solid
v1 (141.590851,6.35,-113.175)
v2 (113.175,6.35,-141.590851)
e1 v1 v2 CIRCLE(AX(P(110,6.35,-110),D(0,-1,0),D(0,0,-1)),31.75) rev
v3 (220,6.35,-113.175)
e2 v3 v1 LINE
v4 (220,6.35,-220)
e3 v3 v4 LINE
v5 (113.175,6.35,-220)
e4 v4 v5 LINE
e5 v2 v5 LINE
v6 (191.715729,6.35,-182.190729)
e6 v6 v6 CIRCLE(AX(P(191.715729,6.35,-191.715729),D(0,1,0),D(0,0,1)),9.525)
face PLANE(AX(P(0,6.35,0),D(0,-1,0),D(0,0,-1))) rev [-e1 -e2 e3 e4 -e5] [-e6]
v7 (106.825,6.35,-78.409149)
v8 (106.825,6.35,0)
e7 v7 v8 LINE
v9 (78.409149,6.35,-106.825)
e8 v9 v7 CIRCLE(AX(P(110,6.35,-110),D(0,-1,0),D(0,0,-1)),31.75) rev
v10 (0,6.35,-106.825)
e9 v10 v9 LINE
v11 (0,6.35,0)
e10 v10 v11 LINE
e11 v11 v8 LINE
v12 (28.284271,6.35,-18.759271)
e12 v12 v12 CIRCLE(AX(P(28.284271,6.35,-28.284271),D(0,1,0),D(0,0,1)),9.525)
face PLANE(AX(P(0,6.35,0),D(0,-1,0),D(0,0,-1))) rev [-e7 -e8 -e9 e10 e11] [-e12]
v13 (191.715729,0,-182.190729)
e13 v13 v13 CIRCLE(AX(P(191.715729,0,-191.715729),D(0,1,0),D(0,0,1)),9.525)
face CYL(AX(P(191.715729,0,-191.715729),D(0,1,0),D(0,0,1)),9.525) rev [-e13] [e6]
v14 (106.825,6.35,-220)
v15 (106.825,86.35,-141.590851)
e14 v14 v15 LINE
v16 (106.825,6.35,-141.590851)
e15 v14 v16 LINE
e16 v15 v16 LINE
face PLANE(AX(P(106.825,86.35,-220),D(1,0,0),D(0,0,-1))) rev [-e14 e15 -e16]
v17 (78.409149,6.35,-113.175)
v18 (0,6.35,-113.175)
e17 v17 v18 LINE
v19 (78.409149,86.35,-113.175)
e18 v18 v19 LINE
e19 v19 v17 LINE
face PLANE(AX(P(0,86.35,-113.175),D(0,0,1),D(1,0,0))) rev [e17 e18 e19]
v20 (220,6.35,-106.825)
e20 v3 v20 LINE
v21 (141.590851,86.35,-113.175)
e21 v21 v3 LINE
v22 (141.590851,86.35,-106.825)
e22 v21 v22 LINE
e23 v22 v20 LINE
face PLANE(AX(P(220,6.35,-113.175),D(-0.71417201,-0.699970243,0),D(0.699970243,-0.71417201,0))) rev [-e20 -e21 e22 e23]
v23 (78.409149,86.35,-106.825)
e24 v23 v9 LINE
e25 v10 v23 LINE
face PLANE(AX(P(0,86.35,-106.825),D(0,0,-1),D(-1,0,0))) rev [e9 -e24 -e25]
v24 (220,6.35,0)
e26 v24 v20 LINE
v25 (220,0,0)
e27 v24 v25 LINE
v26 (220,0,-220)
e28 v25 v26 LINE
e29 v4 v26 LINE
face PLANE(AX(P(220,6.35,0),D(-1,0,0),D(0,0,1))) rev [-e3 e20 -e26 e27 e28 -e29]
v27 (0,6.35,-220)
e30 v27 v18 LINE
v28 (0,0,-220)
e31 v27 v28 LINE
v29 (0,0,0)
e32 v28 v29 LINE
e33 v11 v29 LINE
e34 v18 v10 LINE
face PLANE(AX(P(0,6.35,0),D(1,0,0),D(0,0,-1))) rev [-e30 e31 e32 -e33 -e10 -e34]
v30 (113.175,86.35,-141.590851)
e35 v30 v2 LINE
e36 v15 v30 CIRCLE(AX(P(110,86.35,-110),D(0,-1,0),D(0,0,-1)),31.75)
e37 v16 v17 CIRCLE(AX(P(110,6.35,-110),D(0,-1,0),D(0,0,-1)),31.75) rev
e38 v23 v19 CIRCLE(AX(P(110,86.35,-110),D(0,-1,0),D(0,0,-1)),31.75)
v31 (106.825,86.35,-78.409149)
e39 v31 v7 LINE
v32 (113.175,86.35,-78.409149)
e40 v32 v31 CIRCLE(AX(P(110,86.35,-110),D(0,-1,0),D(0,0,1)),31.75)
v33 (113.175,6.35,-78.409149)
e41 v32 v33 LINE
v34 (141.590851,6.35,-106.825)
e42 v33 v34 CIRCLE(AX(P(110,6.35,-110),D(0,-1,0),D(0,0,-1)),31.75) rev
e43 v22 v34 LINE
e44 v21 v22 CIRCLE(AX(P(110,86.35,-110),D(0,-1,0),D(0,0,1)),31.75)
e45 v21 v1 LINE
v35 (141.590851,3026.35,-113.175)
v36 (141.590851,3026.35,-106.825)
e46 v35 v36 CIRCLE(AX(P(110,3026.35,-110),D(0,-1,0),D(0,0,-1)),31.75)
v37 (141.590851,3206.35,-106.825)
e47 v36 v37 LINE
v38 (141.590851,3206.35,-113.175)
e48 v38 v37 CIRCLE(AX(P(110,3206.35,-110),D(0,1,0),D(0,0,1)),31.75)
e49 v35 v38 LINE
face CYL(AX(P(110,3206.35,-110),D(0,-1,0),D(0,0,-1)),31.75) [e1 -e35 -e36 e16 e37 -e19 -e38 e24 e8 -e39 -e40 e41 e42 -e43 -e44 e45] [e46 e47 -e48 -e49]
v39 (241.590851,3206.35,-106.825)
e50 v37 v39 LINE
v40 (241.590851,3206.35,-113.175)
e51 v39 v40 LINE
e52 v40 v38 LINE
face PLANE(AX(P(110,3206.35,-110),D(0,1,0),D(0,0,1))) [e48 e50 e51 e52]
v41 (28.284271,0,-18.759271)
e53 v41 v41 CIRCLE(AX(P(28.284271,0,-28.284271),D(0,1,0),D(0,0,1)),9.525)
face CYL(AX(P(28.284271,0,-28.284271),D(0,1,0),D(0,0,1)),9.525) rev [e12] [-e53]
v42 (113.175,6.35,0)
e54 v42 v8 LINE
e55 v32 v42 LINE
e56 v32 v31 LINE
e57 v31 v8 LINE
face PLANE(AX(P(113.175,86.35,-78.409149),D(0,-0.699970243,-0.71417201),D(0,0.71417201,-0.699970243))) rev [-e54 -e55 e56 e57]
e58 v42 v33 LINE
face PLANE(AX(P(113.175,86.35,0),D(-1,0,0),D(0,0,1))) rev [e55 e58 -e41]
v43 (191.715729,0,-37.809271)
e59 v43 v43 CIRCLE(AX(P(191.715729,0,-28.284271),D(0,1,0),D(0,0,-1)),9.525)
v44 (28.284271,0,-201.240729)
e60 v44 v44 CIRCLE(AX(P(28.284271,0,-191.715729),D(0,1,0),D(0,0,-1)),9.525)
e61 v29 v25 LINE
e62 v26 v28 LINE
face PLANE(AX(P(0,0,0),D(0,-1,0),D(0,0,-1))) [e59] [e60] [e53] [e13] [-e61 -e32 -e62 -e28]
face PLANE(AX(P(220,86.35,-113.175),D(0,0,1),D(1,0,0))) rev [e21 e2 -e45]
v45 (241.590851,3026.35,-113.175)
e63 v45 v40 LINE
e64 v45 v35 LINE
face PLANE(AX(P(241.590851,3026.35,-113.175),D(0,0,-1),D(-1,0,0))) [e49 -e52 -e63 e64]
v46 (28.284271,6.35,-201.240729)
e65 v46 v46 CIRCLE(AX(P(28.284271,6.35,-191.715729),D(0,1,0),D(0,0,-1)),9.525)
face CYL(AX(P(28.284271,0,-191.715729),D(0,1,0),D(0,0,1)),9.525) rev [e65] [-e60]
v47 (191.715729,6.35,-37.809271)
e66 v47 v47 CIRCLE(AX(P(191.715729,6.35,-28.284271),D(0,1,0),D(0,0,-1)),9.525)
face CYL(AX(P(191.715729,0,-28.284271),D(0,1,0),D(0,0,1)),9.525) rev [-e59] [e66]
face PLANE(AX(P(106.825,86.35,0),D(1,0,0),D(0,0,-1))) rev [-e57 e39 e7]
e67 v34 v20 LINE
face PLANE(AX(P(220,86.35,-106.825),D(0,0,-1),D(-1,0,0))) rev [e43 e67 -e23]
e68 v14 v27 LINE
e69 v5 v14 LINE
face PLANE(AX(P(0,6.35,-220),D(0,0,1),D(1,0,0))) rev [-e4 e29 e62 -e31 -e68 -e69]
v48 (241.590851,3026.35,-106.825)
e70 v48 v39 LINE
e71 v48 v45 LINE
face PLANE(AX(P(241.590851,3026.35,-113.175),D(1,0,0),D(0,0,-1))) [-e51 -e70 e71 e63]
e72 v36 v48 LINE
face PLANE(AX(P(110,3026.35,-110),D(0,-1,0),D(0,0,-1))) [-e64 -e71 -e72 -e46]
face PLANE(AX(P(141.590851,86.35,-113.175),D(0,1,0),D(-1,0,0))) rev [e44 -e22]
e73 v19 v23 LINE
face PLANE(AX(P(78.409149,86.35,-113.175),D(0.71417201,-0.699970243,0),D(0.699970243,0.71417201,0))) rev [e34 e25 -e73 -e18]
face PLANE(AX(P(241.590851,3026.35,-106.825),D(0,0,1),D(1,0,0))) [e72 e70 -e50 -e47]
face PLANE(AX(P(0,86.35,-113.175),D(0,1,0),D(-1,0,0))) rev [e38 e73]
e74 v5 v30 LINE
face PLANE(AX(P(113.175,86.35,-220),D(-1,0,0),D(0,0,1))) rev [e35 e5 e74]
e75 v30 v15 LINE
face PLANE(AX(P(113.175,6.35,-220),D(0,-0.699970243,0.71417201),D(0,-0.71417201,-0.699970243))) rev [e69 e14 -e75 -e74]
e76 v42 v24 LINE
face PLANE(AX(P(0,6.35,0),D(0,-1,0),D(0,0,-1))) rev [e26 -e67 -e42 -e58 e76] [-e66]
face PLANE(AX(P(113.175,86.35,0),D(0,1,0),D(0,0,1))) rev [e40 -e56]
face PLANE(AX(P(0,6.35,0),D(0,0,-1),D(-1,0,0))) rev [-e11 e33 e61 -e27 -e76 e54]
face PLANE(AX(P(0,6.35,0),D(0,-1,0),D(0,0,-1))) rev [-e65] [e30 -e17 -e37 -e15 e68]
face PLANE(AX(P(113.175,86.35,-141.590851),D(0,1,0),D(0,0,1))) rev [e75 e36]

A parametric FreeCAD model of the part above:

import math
import FreeCAD as App
import Part
import Sketcher

V = App.Vector

doc = App.newDocument("Part")
body = doc.addObject("PartDesign::Body", "Body")

# Sketch on XZ plane
sketch1 = body.newObject("Sketcher::SketchObject", "Sketch")
sketch1.AttachmentSupport = (doc.getObject("XZ_Plane"), [""])
sketch1.MapMode = "FlatFace"
sketch1.addGeometry(Part.LineSegment(V(0, -220, 0), V(0, 0, 0)), False)
sketch1.addGeometry(Part.LineSegment(V(0, 0, 0), V(220, 0, 0)), False)
sketch1.addGeometry(Part.LineSegment(V(220, 0, 0), V(220, -220, 0)), False)
sketch1.addGeometry(Part.LineSegment(V(220, -220, 0), V(0, -220, 0)), False)
sketch1.addConstraint(Sketcher.Constraint("Coincident", 0, 2, 1, 1))
sketch1.addConstraint(Sketcher.Constraint("Coincident", 1, 2, 2, 1))
sketch1.addConstraint(Sketcher.Constraint("Coincident", 2, 2, 3, 1))
sketch1.addConstraint(Sketcher.Constraint("Coincident", 3, 2, 0, 1))
sketch1.addConstraint(Sketcher.Constraint("Vertical", 0))
sketch1.addConstraint(Sketcher.Constraint("Horizontal", 1))
sketch1.addConstraint(Sketcher.Constraint("Vertical", 2))
sketch1.addConstraint(Sketcher.Constraint("Horizontal", 3))
sketch1.addConstraint(Sketcher.Constraint("Coincident", 0, 2, -1, 1))
sketch1.addConstraint(Sketcher.Constraint("Equal", 3, 0))
sketch1.addConstraint(Sketcher.Constraint("DistanceX", 1, 1, 1, 2, 220.0))
pad1 = body.newObject("PartDesign::Pad", "Pad")
pad1.Profile = sketch1
pad1.Length = 6.35
pad1.Reversed = True

# Sketch on XZ plane
sketch2 = body.newObject("Sketcher::SketchObject", "Sketch001")
sketch2.AttachmentSupport = (doc.getObject("XZ_Plane"), [""])
sketch2.MapMode = "FlatFace"
sketch2.AttachmentOffset = App.Placement(V(0, 0, -6.35), App.Rotation())
sketch2.addGeometry(Part.Circle(V(110, -110, 0), V(0, 0, 1), 31.75), False)
sketch2.addConstraint(Sketcher.Constraint("Diameter", 0, 63.5))
sketch2.addConstraint(Sketcher.Constraint("DistanceX", -1, 1, 0, 3, 110.0))
sketch2.addConstraint(Sketcher.Constraint("DistanceY", 0, 3, -1, 1, 110.0))
pad2 = body.newObject("PartDesign::Pad", "Pad001")
pad2.Profile = sketch2
pad2.Length = 3200
pad2.Reversed = True

# Sketch on XZ plane
sketch3 = body.newObject("Sketcher::SketchObject", "Sketch002")
sketch3.AttachmentSupport = (doc.getObject("XZ_Plane"), [""])
sketch3.MapMode = "FlatFace"
sketch3.AttachmentOffset = App.Placement(V(0, 0, -6.35), App.Rotation())
sketch3.addGeometry(Part.LineSegment(V(78.409149, -113.175, 0), V(0, -113.175, 0)), False)
sketch3.addGeometry(Part.LineSegment(V(0, -113.175, 0), V(0, -106.825, 0)), False)
sketch3.addGeometry(Part.LineSegment(V(0, -106.825, 0), V(78.409149, -106.825, 0)), False)
sketch3.addGeometry(Part.ArcOfCircle(Part.Circle(V(110, -110, 0), V(0, 0, 1), 31.75), math.radians(174.26083), math.radians(185.73917)), False)
sketch3.addGeometry(Part.LineSegment(V(106.825, -220, 0), V(106.825, -141.590851, 0)), False)
sketch3.addGeometry(Part.ArcOfCircle(Part.Circle(V(110, -110, 0), V(0, 0, 1), 31.75), math.radians(-95.73917), math.radians(-84.26083)), False)
sketch3.addGeometry(Part.LineSegment(V(113.175, -141.590851, 0), V(113.175, -220, 0)), False)
sketch3.addGeometry(Part.LineSegment(V(113.175, -220, 0), V(106.825, -220, 0)), False)
sketch3.addGeometry(Part.LineSegment(V(106.825, 0, 0), V(113.175, 0, 0)), False)
sketch3.addGeometry(Part.LineSegment(V(113.175, 0, 0), V(113.175, -78.409149, 0)), False)
sketch3.addGeometry(Part.ArcOfCircle(Part.Circle(V(110, -110, 0), V(0, 0, 1), 31.75), math.radians(84.26083), math.radians(95.73917)), False)
sketch3.addGeometry(Part.LineSegment(V(106.825, -78.409149, 0), V(106.825, 0, 0)), False)
sketch3.addGeometry(Part.LineSegment(V(220, -106.825, 0), V(220, -113.175, 0)), False)
sketch3.addGeometry(Part.LineSegment(V(220, -113.175, 0), V(141.590851, -113.175, 0)), False)
sketch3.addGeometry(Part.ArcOfCircle(Part.Circle(V(110, -110, 0), V(0, 0, 1), 31.75), math.radians(-5.73917), math.radians(5.73917)), False)
sketch3.addGeometry(Part.LineSegment(V(141.590851, -106.825, 0), V(220, -106.825, 0)), False)
sketch3.addConstraint(Sketcher.Constraint("Coincident", 0, 2, 1, 1))
sketch3.addConstraint(Sketcher.Constraint("Coincident", 1, 2, 2, 1))
sketch3.addConstraint(Sketcher.Constraint("Coincident", 2, 2, 3, 1))
sketch3.addConstraint(Sketcher.Constraint("Coincident", 3, 2, 0, 1))
sketch3.addConstraint(Sketcher.Constraint("Coincident", 4, 2, 5, 1))
sketch3.addConstraint(Sketcher.Constraint("Coincident", 5, 2, 6, 1))
sketch3.addConstraint(Sketcher.Constraint("Coincident", 6, 2, 7, 1))
sketch3.addConstraint(Sketcher.Constraint("Coincident", 7, 2, 4, 1))
sketch3.addConstraint(Sketcher.Constraint("Coincident", 8, 2, 9, 1))
sketch3.addConstraint(Sketcher.Constraint("Coincident", 9, 2, 10, 1))
sketch3.addConstraint(Sketcher.Constraint("Coincident", 10, 2, 11, 1))
sketch3.addConstraint(Sketcher.Constraint("Coincident", 11, 2, 8, 1))
sketch3.addConstraint(Sketcher.Constraint("Coincident", 12, 2, 13, 1))
sketch3.addConstraint(Sketcher.Constraint("Coincident", 13, 2, 14, 1))
sketch3.addConstraint(Sketcher.Constraint("Coincident", 14, 2, 15, 1))
sketch3.addConstraint(Sketcher.Constraint("Coincident", 15, 2, 12, 1))
sketch3.addConstraint(Sketcher.Constraint("Horizontal", 0))
sketch3.addConstraint(Sketcher.Constraint("Vertical", 1))
sketch3.addConstraint(Sketcher.Constraint("Horizontal", 2))
sketch3.addConstraint(Sketcher.Constraint("Vertical", 4))
sketch3.addConstraint(Sketcher.Constraint("Vertical", 6))
sketch3.addConstraint(Sketcher.Constraint("Horizontal", 7))
sketch3.addConstraint(Sketcher.Constraint("Horizontal", 8))
sketch3.addConstraint(Sketcher.Constraint("Vertical", 9))
sketch3.addConstraint(Sketcher.Constraint("Vertical", 11))
sketch3.addConstraint(Sketcher.Constraint("Vertical", 12))
sketch3.addConstraint(Sketcher.Constraint("Horizontal", 13))
sketch3.addConstraint(Sketcher.Constraint("Horizontal", 15))
sketch3.addConstraint(Sketcher.Constraint("Coincident", 5, 3, 3, 3))
sketch3.addConstraint(Sketcher.Constraint("Coincident", 10, 3, 3, 3))
sketch3.addConstraint(Sketcher.Constraint("Coincident", 14, 3, 3, 3))
sketch3.addConstraint(Sketcher.Constraint("Equal", 3, 5))
sketch3.addConstraint(Sketcher.Constraint("Equal", 5, 10))
sketch3.addConstraint(Sketcher.Constraint("Equal", 10, 14))
sketch3.addConstraint(Sketcher.Constraint("PointOnObject", 0, 2, -2))
sketch3.addConstraint(Sketcher.Constraint("PointOnObject", 8, 2, -1))
sketch3.addConstraint(Sketcher.Constraint("Horizontal", 4, 2, 5, 2))
sketch3.addConstraint(Sketcher.Constraint("Horizontal", 9, 2, 10, 2))
sketch3.addConstraint(Sketcher.Constraint("Horizontal", 3, 2, 12, 2))
sketch3.addConstraint(Sketcher.Constraint("Horizontal", 2, 2, 14, 2))
sketch3.addConstraint(Sketcher.Constraint("Vertical", 2, 2, 3, 2))
sketch3.addConstraint(Sketcher.Constraint("Vertical", 6, 2, 8, 2))
sketch3.addConstraint(Sketcher.Constraint("Equal", 2, 13))
sketch3.addConstraint(Sketcher.Constraint("Equal", 8, 1))
sketch3.addConstraint(Sketcher.Constraint("Equal", 15, 4))
sketch3.addConstraint(Sketcher.Constraint("Equal", 6, 9))
sketch3.addConstraint(Sketcher.Constraint("Radius", 3, 31.75))
sketch3.addConstraint(Sketcher.Constraint("DistanceX", -1, 1, 3, 3, 110.0))
sketch3.addConstraint(Sketcher.Constraint("DistanceX", 7, 2, 7, 1, 6.35))
pad3 = body.newObject("PartDesign::Pad", "Pad002")
pad3.Profile = sketch3
pad3.Length = 80
pad3.Reversed = True

# Sketch on XY plane
sketch4 = body.newObject("Sketcher::SketchObject", "Sketch003")
sketch4.AttachmentSupport = (doc.getObject("XY_Plane"), [""])
sketch4.MapMode = "FlatFace"
sketch4.AttachmentOffset = App.Placement(V(0, 0, -106.825), App.Rotation())
sketch4.addGeometry(Part.LineSegment(V(0, 6.35, 0), V(78.409149, 86.35, 0)), False)
sketch4.addGeometry(Part.LineSegment(V(78.409149, 86.35, 0), V(0, 86.35, 0)), False)
sketch4.addGeometry(Part.LineSegment(V(0, 86.35, 0), V(0, 6.35, 0)), False)
sketch4.addGeometry(Part.LineSegment(V(220, 86.35, 0), V(141.590851, 86.35, 0)), False)
sketch4.addGeometry(Part.LineSegment(V(141.590851, 86.35, 0), V(220, 6.35, 0)), False)
sketch4.addGeometry(Part.LineSegment(V(220, 6.35, 0), V(220, 86.35, 0)), False)
sketch4.addConstraint(Sketcher.Constraint("Coincident", 0, 2, 1, 1))
sketch4.addConstraint(Sketcher.Constraint("Coincident", 1, 2, 2, 1))
sketch4.addConstraint(Sketcher.Constraint("Coincident", 2, 2, 0, 1))
sketch4.addConstraint(Sketcher.Constraint("Coincident", 3, 2, 4, 1))
sketch4.addConstraint(Sketcher.Constraint("Coincident", 4, 2, 5, 1))
sketch4.addConstraint(Sketcher.Constraint("Coincident", 5, 2, 3, 1))
sketch4.addConstraint(Sketcher.Constraint("Horizontal", 1))
sketch4.addConstraint(Sketcher.Constraint("Vertical", 2))
sketch4.addConstraint(Sketcher.Constraint("Horizontal", 3))
sketch4.addConstraint(Sketcher.Constraint("Vertical", 5))
sketch4.addConstraint(Sketcher.Constraint("PointOnObject", 1, 2, -2))
sketch4.addConstraint(Sketcher.Constraint("Horizontal", 1, 2, 3, 2))
sketch4.addConstraint(Sketcher.Constraint("Horizontal", 2, 2, 4, 2))
sketch4.addConstraint(Sketcher.Constraint("Equal", 1, 3))
sketch4.addConstraint(Sketcher.Constraint("DistanceY", 2, 2, 2, 1, 80.0))
sketch4.addConstraint(Sketcher.Constraint("DistanceX", -1, 1, 4, 2, 220.0))
sketch4.addConstraint(Sketcher.Constraint("DistanceY", -1, 1, 0, 2, 86.35))
sketch4.addConstraint(Sketcher.Constraint("DistanceX", 1, 2, 1, 1, 78.409149))
pocket1 = body.newObject("PartDesign::Pocket", "Pocket")
pocket1.Profile = sketch4
pocket1.Length = 6.35

# Sketch on YZ plane
sketch5 = body.newObject("Sketcher::SketchObject", "Sketch004")
sketch5.AttachmentSupport = (doc.getObject("YZ_Plane"), [""])
sketch5.MapMode = "FlatFace"
sketch5.AttachmentOffset = App.Placement(V(0, 0, 106.825), App.Rotation())
sketch5.addGeometry(Part.LineSegment(V(6.35, -220, 0), V(86.35, -141.590851, 0)), False)
sketch5.addGeometry(Part.LineSegment(V(86.35, -141.590851, 0), V(86.35, -220, 0)), False)
sketch5.addGeometry(Part.LineSegment(V(86.35, -220, 0), V(6.35, -220, 0)), False)
sketch5.addGeometry(Part.LineSegment(V(86.35, -78.409149, 0), V(6.35, 0, 0)), False)
sketch5.addGeometry(Part.LineSegment(V(6.35, 0, 0), V(86.35, 0, 0)), False)
sketch5.addGeometry(Part.LineSegment(V(86.35, 0, 0), V(86.35, -78.409149, 0)), False)
sketch5.addConstraint(Sketcher.Constraint("Coincident", 0, 2, 1, 1))
sketch5.addConstraint(Sketcher.Constraint("Coincident", 1, 2, 2, 1))
sketch5.addConstraint(Sketcher.Constraint("Coincident", 2, 2, 0, 1))
sketch5.addConstraint(Sketcher.Constraint("Coincident", 3, 2, 4, 1))
sketch5.addConstraint(Sketcher.Constraint("Coincident", 4, 2, 5, 1))
sketch5.addConstraint(Sketcher.Constraint("Coincident", 5, 2, 3, 1))
sketch5.addConstraint(Sketcher.Constraint("Vertical", 1))
sketch5.addConstraint(Sketcher.Constraint("Horizontal", 2))
sketch5.addConstraint(Sketcher.Constraint("Horizontal", 4))
sketch5.addConstraint(Sketcher.Constraint("Vertical", 5))
sketch5.addConstraint(Sketcher.Constraint("PointOnObject", 3, 2, -1))
sketch5.addConstraint(Sketcher.Constraint("Vertical", 2, 2, 3, 2))
sketch5.addConstraint(Sketcher.Constraint("Vertical", 1, 2, 4, 2))
sketch5.addConstraint(Sketcher.Constraint("Equal", 1, 5))
sketch5.addConstraint(Sketcher.Constraint("DistanceX", 2, 2, 2, 1, 80.0))
sketch5.addConstraint(Sketcher.Constraint("DistanceY", 1, 2, -1, 1, 220.0))
sketch5.addConstraint(Sketcher.Constraint("DistanceX", -1, 1, 0, 2, 86.35))
sketch5.addConstraint(Sketcher.Constraint("DistanceY", 1, 2, 1, 1, 78.409149))
pocket2 = body.newObject("PartDesign::Pocket", "Pocket001")
pocket2.Profile = sketch5
pocket2.Length = 6.35
pocket2.Reversed = True

# Sketch on XZ plane
sketch6 = body.newObject("Sketcher::SketchObject", "Sketch005")
sketch6.AttachmentSupport = (doc.getObject("XZ_Plane"), [""])
sketch6.MapMode = "FlatFace"
sketch6.AttachmentOffset = App.Placement(V(0, 0, -6.35), App.Rotation())
sketch6.addGeometry(Part.Circle(V(191.715729, -191.715729, 0), V(0, 0, 1), 9.525), False)
sketch6.addGeometry(Part.Circle(V(191.715729, -28.284271, 0), V(0, 0, 1), 9.525), False)
sketch6.addGeometry(Part.Circle(V(28.284271, -28.284271, 0), V(0, 0, 1), 9.525), False)
sketch6.addGeometry(Part.Circle(V(28.284271, -191.715729, 0), V(0, 0, 1), 9.525), False)
sketch6.addConstraint(Sketcher.Constraint("Equal", 0, 1))
sketch6.addConstraint(Sketcher.Constraint("Equal", 1, 2))
sketch6.addConstraint(Sketcher.Constraint("Equal", 2, 3))
sketch6.addConstraint(Sketcher.Constraint("Horizontal", 1, 3, 2, 3))
sketch6.addConstraint(Sketcher.Constraint("Horizontal", 0, 3, 3, 3))
sketch6.addConstraint(Sketcher.Constraint("Vertical", 0, 3, 1, 3))
sketch6.addConstraint(Sketcher.Constraint("Vertical", 2, 3, 3, 3))
sketch6.addConstraint(Sketcher.Constraint("Diameter", 0, 19.05))
sketch6.addConstraint(Sketcher.Constraint("DistanceX", -1, 1, 0, 3, 191.715729))
sketch6.addConstraint(Sketcher.Constraint("DistanceY", 0, 3, -1, 1, 191.715729))
sketch6.addConstraint(Sketcher.Constraint("DistanceY", 1, 3, -1, 1, 28.284271))
sketch6.addConstraint(Sketcher.Constraint("DistanceX", -1, 1, 2, 3, 28.284271))
pocket3 = body.newObject("PartDesign::Pocket", "Pocket002")
pocket3.Profile = sketch6
pocket3.Length = 6.35
pocket3.Reversed = True

# Sketch on XZ plane
sketch7 = body.newObject("Sketcher::SketchObject", "Sketch006")
sketch7.AttachmentSupport = (doc.getObject("XZ_Plane"), [""])
sketch7.MapMode = "FlatFace"
sketch7.AttachmentOffset = App.Placement(V(0, 0, -3026.35), App.Rotation())
sketch7.addGeometry(Part.LineSegment(V(241.590851, -113.175, 0), V(141.590851, -113.175, 0)), False)
sketch7.addGeometry(Part.ArcOfCircle(Part.Circle(V(110, -110, 0), V(0, 0, 1), 31.75), math.radians(-5.73917), math.radians(5.73917)), False)
sketch7.addGeometry(Part.LineSegment(V(141.590851, -106.825, 0), V(241.590851, -106.825, 0)), False)
sketch7.addGeometry(Part.LineSegment(V(241.590851, -106.825, 0), V(241.590851, -113.175, 0)), False)
sketch7.addConstraint(Sketcher.Constraint("Coincident", 0, 2, 1, 1))
sketch7.addConstraint(Sketcher.Constraint("Coincident", 1, 2, 2, 1))
sketch7.addConstraint(Sketcher.Constraint("Coincident", 2, 2, 3, 1))
sketch7.addConstraint(Sketcher.Constraint("Coincident", 3, 2, 0, 1))
sketch7.addConstraint(Sketcher.Constraint("Horizontal", 0))
sketch7.addConstraint(Sketcher.Constraint("Horizontal", 2))
sketch7.addConstraint(Sketcher.Constraint("Vertical", 3))
sketch7.addConstraint(Sketcher.Constraint("Vertical", 0, 2, 1, 2))
sketch7.addConstraint(Sketcher.Constraint("DistanceX", 0, 2, 0, 1, 100.0))
sketch7.addConstraint(Sketcher.Constraint("Radius", 1, 31.75))
sketch7.addConstraint(Sketcher.Constraint("DistanceX", -1, 1, 1, 3, 110.0))
sketch7.addConstraint(Sketcher.Constraint("DistanceY", 1, 3, -1, 1, 110.0))
sketch7.addConstraint(Sketcher.Constraint("DistanceY", 3, 2, 3, 1, 6.35))
pad4 = body.newObject("PartDesign::Pad", "Pad003")
pad4.Profile = sketch7
pad4.Length = 180
pad4.Reversed = True

doc.recompute()
